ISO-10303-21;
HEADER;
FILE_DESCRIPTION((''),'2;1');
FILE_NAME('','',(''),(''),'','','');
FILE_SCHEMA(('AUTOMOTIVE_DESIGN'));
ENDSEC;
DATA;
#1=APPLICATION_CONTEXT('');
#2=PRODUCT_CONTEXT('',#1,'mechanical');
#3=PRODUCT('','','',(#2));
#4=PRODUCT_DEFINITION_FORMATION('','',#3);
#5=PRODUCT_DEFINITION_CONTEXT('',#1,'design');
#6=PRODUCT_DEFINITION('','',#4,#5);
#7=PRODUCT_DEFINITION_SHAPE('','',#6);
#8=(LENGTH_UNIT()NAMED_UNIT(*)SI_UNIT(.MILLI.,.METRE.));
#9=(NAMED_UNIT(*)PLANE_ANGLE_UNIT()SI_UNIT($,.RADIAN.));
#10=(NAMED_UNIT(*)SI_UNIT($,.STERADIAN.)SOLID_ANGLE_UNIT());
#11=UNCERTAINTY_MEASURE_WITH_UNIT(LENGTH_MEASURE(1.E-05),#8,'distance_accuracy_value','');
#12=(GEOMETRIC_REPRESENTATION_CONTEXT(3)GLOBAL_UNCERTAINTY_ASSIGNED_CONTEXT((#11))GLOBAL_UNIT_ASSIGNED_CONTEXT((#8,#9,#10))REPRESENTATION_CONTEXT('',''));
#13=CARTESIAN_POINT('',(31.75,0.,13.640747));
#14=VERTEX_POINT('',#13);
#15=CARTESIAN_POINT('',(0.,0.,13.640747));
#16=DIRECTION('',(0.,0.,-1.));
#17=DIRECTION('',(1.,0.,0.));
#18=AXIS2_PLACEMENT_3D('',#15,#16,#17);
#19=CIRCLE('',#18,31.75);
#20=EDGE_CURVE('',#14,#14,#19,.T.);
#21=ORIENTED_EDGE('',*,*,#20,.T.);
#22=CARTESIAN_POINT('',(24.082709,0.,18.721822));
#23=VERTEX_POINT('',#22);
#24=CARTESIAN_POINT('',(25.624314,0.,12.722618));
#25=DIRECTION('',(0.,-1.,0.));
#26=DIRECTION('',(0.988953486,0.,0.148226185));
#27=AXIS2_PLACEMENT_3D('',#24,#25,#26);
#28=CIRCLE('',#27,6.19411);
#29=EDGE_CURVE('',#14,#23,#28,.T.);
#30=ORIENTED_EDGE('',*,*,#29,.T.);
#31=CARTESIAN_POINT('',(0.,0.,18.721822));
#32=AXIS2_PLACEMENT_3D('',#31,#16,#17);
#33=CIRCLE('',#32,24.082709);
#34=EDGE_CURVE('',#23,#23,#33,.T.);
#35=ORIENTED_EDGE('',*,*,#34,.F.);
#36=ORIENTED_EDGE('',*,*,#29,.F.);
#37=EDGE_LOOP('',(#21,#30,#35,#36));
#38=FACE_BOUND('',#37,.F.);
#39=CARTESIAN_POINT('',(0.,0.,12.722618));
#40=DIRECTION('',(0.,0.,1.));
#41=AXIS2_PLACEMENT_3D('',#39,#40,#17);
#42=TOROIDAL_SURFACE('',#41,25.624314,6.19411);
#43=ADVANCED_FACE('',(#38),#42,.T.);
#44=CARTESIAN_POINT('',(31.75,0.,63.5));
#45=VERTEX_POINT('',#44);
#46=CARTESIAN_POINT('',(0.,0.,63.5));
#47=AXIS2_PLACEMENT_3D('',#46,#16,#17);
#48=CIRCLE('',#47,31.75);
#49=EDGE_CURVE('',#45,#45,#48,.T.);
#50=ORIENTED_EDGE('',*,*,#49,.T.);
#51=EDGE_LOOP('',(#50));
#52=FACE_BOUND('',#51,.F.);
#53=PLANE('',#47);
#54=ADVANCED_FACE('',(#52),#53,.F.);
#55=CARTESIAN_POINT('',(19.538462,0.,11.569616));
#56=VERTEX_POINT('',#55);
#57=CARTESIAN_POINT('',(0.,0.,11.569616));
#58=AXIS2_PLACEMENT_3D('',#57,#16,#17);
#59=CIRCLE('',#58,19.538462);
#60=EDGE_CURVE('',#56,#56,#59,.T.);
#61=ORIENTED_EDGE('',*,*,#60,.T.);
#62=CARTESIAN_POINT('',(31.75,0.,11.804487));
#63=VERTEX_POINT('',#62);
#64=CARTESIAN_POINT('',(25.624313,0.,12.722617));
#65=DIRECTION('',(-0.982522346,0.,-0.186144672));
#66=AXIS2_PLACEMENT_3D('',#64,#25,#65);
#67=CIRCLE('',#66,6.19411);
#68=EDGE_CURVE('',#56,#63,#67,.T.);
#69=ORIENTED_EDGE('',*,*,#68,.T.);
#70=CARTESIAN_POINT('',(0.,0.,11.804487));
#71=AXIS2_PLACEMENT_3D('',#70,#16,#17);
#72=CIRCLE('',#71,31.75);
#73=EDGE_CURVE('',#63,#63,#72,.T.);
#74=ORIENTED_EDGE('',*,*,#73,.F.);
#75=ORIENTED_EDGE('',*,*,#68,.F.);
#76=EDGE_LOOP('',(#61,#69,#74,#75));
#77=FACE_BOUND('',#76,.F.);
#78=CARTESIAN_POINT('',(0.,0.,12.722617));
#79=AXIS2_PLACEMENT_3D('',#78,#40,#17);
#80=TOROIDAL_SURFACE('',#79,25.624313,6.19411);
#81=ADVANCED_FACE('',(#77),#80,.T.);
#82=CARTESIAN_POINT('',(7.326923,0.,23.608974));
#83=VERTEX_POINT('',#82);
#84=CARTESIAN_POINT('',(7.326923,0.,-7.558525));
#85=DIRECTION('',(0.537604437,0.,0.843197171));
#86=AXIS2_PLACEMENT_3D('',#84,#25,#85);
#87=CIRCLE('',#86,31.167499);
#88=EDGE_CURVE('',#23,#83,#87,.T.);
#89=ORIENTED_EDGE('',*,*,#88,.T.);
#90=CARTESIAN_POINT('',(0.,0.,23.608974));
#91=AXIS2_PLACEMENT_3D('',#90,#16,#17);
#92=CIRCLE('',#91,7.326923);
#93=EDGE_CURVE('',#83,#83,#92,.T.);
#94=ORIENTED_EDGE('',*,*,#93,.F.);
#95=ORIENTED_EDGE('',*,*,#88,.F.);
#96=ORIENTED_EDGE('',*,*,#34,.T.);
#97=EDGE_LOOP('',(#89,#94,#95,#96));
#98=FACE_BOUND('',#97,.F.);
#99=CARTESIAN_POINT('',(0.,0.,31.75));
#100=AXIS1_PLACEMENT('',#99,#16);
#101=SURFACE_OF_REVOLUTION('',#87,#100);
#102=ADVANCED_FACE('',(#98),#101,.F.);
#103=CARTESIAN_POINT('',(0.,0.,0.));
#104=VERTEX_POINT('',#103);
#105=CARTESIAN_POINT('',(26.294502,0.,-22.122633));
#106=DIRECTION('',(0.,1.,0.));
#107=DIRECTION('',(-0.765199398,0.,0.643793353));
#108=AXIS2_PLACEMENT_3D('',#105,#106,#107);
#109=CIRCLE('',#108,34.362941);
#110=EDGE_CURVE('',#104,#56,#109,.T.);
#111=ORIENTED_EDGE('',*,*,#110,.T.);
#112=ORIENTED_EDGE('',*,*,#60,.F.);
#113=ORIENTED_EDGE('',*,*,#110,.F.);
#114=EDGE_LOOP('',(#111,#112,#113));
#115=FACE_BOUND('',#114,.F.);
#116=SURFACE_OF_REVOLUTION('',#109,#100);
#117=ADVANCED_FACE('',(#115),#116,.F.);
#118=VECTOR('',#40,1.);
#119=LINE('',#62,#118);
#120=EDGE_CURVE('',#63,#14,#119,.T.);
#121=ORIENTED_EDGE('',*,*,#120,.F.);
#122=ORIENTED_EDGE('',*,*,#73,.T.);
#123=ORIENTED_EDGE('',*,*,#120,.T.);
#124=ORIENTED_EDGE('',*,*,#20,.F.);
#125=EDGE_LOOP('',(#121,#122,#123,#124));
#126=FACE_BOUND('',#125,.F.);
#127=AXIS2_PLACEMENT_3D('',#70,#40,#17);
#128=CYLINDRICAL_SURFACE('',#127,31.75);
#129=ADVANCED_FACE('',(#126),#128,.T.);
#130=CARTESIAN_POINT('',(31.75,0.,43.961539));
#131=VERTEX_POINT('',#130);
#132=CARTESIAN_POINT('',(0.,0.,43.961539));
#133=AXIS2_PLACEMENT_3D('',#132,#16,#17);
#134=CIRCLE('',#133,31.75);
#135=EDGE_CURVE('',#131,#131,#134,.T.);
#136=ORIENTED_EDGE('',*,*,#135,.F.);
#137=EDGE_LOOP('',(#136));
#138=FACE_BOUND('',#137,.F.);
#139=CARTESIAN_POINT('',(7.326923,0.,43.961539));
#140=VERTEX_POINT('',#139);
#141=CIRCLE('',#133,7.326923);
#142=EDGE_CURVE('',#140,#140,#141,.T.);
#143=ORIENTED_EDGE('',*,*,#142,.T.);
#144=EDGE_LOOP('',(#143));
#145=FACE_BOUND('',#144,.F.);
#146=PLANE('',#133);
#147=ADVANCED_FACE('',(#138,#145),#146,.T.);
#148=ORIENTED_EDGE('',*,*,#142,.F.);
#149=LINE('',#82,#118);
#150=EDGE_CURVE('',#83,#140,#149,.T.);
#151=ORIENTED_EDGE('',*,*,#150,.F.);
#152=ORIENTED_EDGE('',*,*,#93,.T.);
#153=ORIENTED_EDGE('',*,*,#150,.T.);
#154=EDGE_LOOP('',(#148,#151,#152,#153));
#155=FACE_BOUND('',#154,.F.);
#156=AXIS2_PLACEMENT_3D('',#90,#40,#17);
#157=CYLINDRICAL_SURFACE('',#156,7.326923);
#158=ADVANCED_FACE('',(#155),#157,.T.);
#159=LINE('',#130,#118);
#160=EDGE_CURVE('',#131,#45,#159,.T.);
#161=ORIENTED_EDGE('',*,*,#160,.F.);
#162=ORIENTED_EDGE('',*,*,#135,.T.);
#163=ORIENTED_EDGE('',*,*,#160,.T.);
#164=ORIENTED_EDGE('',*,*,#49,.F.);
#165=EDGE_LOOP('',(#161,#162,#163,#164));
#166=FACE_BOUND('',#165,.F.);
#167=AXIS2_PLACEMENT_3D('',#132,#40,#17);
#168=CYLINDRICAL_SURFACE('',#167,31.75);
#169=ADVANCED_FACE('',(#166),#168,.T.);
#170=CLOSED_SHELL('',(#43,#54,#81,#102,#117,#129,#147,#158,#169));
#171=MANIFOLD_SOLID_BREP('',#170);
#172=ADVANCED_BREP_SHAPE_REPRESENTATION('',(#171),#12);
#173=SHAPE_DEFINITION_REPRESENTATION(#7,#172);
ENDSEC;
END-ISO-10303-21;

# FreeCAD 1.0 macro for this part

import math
import FreeCAD as App
import Part
import Sketcher
from FreeCAD import Vector
Q = App.Units.Quantity

doc = App.newDocument("Part")
body = doc.addObject("PartDesign::Body", "Body")

sketch1 = doc.addObject("Sketcher::SketchObject", "Sketch")
body.addObject(sketch1)
sketch1.AttachmentSupport = (doc.XZ_Plane, [""])
sketch1.MapMode = "FlatFace"
sketch1.addGeometry([
    Part.ArcOfCircle(Part.Circle(Vector(7.326923, -7.558525, 0), Vector(0, 0, 1), 31.167499), math.radians(57.479289), math.radians(90.000001)),
    Part.LineSegment(Vector(7.326923, 23.608974, 0), Vector(7.326923, 43.961539, 0)),
    Part.LineSegment(Vector(7.326923, 43.961539, 0), Vector(31.75, 43.961539, 0)),
    Part.LineSegment(Vector(31.75, 43.961539, 0), Vector(31.75, 63.5, 0)),
    Part.LineSegment(Vector(31.75, 63.5, 0), Vector(0, 63.5, 0)),
    Part.LineSegment(Vector(0, 63.5, 0), Vector(0, 0, 0)),
    Part.ArcOfCircle(Part.Circle(Vector(26.294502, -22.122633, 0), Vector(0, 0, 1), 34.362941), math.radians(101.338692), math.radians(139.924735)),
    Part.ArcOfCircle(Part.Circle(Vector(25.624313, 12.722617, 0), Vector(0, 0, 1), 6.19411), math.radians(-169.272123), math.radians(-8.524148)),
    Part.LineSegment(Vector(31.75, 11.804487, 0), Vector(31.75, 13.640747, 0)),
    Part.ArcOfCircle(Part.Circle(Vector(25.624314, 12.722618, 0), Vector(0, 0, 1), 6.19411), math.radians(8.524145), math.radians(104.411384)),
], False)
sketch1.addConstraint([
    Sketcher.Constraint("Coincident", 0, 2, 1, 1),
    Sketcher.Constraint("Coincident", 1, 2, 2, 1),
    Sketcher.Constraint("Coincident", 2, 2, 3, 1),
    Sketcher.Constraint("Coincident", 3, 2, 4, 1),
    Sketcher.Constraint("Coincident", 4, 2, 5, 1),
    Sketcher.Constraint("Coincident", 5, 2, 6, 2),
    Sketcher.Constraint("Coincident", 6, 1, 7, 1),
    Sketcher.Constraint("Coincident", 7, 2, 8, 1),
    Sketcher.Constraint("Coincident", 8, 2, 9, 1),
    Sketcher.Constraint("Coincident", 9, 2, 0, 1),
    Sketcher.Constraint("Vertical", 1),
    Sketcher.Constraint("Horizontal", 2),
    Sketcher.Constraint("Vertical", 3),
    Sketcher.Constraint("Horizontal", 4),
    Sketcher.Constraint("Vertical", 5),
    Sketcher.Constraint("Vertical", 8),
    Sketcher.Constraint("Coincident", 5, 2, -1, 1),
    Sketcher.Constraint("Coincident", 9, 3, 7, 3),
    Sketcher.Constraint("Equal", 7, 9),
    Sketcher.Constraint("Vertical", 3, 2, 7, 2),
    Sketcher.Constraint("DistanceY", 5, 2, 5, 1, Q("2.5 in")),
    Sketcher.Constraint("DistanceX", 4, 2, 4, 1, Q("1.25 in")),
    Sketcher.Constraint("Radius", 0, 31.167499),
    Sketcher.Constraint("Radius", 6, 34.362941),
    Sketcher.Constraint("Radius", 7, 6.19411),
    Sketcher.Constraint("DistanceY", 3, 1, 3, 2, 19.538461),
    Sketcher.Constraint("DistanceY", 8, 1, 8, 2, 1.83626),
    Sketcher.Constraint("DistanceX", -1, 1, 6, 3, 26.294502),
    Sketcher.Constraint("DistanceY", 6, 1, 7, 3, 1.153001),
    Sketcher.Constraint("DistanceX", 2, 1, 2, 2, 24.423077),
    Sketcher.Constraint("DistanceY", 1, 1, 1, 2, 20.352565),
    Sketcher.Constraint("DistanceX", -1, 1, 9, 2, 24.082709),
])
revolution = doc.addObject("PartDesign::Revolution", "Revolution")
body.addObject(revolution)
revolution.Profile = sketch1
revolution.ReferenceAxis = (sketch1, ["V_Axis"])
revolution.Angle = 360

doc.recompute()
